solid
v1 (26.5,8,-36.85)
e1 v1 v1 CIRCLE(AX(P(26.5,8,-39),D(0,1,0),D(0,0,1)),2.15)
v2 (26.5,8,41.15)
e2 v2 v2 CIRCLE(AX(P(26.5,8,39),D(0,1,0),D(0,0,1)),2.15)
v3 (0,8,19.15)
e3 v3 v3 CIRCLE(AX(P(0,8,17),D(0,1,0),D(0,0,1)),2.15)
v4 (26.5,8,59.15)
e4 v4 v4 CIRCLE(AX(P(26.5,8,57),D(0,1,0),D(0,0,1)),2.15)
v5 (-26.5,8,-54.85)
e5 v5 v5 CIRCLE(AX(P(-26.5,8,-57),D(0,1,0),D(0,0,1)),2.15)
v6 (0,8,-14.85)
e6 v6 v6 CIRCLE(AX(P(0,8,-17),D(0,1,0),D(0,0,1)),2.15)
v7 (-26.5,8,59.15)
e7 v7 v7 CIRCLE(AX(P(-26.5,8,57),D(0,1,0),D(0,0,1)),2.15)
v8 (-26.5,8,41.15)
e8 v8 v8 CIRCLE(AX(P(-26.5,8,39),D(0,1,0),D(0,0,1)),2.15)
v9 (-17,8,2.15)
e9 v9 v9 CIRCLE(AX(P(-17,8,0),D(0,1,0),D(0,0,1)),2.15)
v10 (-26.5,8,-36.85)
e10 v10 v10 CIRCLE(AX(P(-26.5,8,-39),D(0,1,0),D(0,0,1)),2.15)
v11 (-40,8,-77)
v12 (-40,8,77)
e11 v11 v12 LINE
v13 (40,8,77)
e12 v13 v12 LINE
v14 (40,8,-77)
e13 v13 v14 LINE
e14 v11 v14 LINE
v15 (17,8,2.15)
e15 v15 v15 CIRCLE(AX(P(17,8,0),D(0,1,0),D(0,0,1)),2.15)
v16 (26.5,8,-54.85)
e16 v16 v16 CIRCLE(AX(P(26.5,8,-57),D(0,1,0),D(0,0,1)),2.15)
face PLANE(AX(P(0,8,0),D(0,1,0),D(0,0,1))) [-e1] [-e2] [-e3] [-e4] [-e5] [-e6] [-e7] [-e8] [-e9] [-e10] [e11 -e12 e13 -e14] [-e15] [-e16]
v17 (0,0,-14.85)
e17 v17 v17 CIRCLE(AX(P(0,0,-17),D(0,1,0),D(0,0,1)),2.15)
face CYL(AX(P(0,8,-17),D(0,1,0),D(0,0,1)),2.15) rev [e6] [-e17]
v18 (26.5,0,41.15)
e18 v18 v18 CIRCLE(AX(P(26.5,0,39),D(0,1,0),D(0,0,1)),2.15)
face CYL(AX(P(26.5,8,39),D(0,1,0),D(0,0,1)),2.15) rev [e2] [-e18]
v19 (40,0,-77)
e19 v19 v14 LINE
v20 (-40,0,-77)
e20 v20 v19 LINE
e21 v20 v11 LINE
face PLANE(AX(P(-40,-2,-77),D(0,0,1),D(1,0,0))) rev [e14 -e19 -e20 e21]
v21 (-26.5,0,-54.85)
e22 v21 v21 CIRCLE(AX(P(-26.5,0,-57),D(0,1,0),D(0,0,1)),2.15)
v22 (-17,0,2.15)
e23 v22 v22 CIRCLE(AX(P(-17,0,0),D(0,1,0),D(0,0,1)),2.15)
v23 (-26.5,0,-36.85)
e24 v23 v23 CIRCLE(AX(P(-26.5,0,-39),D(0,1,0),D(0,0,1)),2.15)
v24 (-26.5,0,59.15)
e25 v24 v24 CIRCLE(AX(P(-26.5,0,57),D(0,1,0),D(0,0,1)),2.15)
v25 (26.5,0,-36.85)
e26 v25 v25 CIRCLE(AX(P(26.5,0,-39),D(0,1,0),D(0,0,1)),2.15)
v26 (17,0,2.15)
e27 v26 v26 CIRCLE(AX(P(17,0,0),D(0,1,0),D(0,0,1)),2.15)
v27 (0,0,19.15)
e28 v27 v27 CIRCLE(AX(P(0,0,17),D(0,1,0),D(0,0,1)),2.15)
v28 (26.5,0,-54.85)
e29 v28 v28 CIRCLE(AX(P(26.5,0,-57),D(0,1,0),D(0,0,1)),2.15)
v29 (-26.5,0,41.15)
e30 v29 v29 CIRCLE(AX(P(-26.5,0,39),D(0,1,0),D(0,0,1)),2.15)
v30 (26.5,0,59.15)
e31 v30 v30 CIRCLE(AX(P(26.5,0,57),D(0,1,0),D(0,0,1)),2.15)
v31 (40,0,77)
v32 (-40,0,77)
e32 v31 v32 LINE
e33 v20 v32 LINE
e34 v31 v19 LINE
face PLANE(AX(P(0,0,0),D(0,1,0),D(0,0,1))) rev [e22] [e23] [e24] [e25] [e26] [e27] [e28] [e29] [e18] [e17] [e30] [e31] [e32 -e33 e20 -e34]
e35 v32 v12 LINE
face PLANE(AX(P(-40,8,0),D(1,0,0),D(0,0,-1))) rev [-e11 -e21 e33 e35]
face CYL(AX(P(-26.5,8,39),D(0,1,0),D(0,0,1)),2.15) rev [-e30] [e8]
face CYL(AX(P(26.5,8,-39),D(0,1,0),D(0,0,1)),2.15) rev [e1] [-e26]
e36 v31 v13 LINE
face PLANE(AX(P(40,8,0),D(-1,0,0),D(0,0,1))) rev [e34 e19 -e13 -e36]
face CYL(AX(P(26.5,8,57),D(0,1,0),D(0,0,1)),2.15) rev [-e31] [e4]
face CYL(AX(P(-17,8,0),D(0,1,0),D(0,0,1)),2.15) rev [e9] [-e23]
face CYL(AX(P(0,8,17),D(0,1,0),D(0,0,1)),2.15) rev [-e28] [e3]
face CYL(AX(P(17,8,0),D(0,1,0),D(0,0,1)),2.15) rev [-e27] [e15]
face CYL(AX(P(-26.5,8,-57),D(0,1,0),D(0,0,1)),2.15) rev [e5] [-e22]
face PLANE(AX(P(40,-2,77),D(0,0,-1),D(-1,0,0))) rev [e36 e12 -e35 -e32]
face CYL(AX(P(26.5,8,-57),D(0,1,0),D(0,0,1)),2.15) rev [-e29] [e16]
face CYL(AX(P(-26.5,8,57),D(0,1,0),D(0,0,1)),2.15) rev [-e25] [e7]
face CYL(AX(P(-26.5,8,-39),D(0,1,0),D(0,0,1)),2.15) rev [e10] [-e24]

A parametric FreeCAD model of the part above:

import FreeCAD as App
import Part
import Sketcher
from FreeCAD import Vector
Q = App.Units.Quantity

doc = App.newDocument("Part")
body = doc.addObject("PartDesign::Body", "Body")

sketch1 = body.newObject("Sketcher::SketchObject", "Sketch")
sketch1.AttachmentSupport = (doc.getObject("XZ_Plane"), [""])
sketch1.MapMode = "FlatFace"
sketch1.addGeometry([
    Part.LineSegment(Vector(-40, -80, 0), Vector(-40, 80, 0)),
    Part.LineSegment(Vector(-40, 80, 0), Vector(40, 80, 0)),
    Part.LineSegment(Vector(40, 80, 0), Vector(40, -80, 0)),
    Part.LineSegment(Vector(40, -80, 0), Vector(-40, -80, 0)),
], False)
sketch1.addConstraint([
    Sketcher.Constraint("Coincident", 0, 2, 1, 1),
    Sketcher.Constraint("Coincident", 1, 2, 2, 1),
    Sketcher.Constraint("Coincident", 2, 2, 3, 1),
    Sketcher.Constraint("Coincident", 3, 2, 0, 1),
    Sketcher.Constraint("Vertical", 0),
    Sketcher.Constraint("Horizontal", 1),
    Sketcher.Constraint("Vertical", 2),
    Sketcher.Constraint("Horizontal", 3),
    Sketcher.Constraint("Symmetric", 0, 2, 2, 2, -1, 1),
    Sketcher.Constraint("DistanceX", 1, 1, 1, 2, Q("80 mm")),
    Sketcher.Constraint("DistanceY", 0, 1, 0, 2, Q("161 mm")),
])
pad1 = body.newObject("PartDesign::Pad", "Pad")
pad1.Profile = sketch1
pad1.Length = 8
pad1.Reversed = True

sketch2 = body.newObject("Sketcher::SketchObject", "Sketch001")
sketch2.AttachmentSupport = (doc.getObject("XZ_Plane"), [""])
sketch2.MapMode = "FlatFace"
sketch2.AttachmentOffset = App.Placement(Vector(0, 0, -8), App.Rotation())
sketch2.addGeometry([
    Part.Circle(Vector(-26.5, -57, 0), Vector(0, 0, 1), 2.1),
    Part.Circle(Vector(26.5, -57, 0), Vector(0, 0, 1), 2.1),
    Part.Circle(Vector(-26.5, -39, 0), Vector(0, 0, 1), 2.1),
    Part.Circle(Vector(26.5, -39, 0), Vector(0, 0, 1), 2.1),
    Part.Circle(Vector(26.5, 39, 0), Vector(0, 0, 1), 2.1),
    Part.Circle(Vector(-26.5, 39, 0), Vector(0, 0, 1), 2.1),
    Part.Circle(Vector(26.5, 57, 0), Vector(0, 0, 1), 2.1),
    Part.Circle(Vector(-26.5, 57, 0), Vector(0, 0, 1), 2.1),
], False)
sketch2.addConstraint([
    Sketcher.Constraint("Equal", 0, 1),
    Sketcher.Constraint("Equal", 1, 2),
    Sketcher.Constraint("Equal", 2, 3),
    Sketcher.Constraint("Equal", 3, 4),
    Sketcher.Constraint("Equal", 4, 5),
    Sketcher.Constraint("Equal", 5, 6),
    Sketcher.Constraint("Equal", 6, 7),
    Sketcher.Constraint("Symmetric", 2, 3, 4, 3, -1, 1),
    Sketcher.Constraint("Symmetric", 3, 3, 5, 3, -1, 1),
    Sketcher.Constraint("Symmetric", 0, 3, 6, 3, -1, 1),
    Sketcher.Constraint("Symmetric", 1, 3, 7, 3, -1, 1),
    Sketcher.Constraint("Symmetric", 0, 3, 1, 3, -2),
    Sketcher.Constraint("Symmetric", 2, 3, 3, 3, -2),
    Sketcher.Constraint("Vertical", 0, 3, 2, 3),
    Sketcher.Constraint("Diameter", 0, Q("4.3 mm")),
    Sketcher.Constraint("DistanceY", 0, 3, -1, 1, Q("57 mm")),
    Sketcher.Constraint("DistanceY", 2, 3, -1, 1, Q("39 mm")),
    Sketcher.Constraint("DistanceX", 0, 3, 1, 3, Q("53 mm")),
])
doc.recompute()
hole = body.newObject("PartDesign::Hole", "Hole")
hole.Profile = sketch2
hole.ThreadType = "None"
hole.Diameter = 4.3
hole.DepthType = "ThroughAll"
hole.Reversed = True

sketch3 = body.newObject("Sketcher::SketchObject", "Sketch002")
sketch3.AttachmentSupport = (doc.getObject("XZ_Plane"), [""])
sketch3.MapMode = "FlatFace"
sketch3.AttachmentOffset = App.Placement(Vector(0, 0, -8), App.Rotation())
sketch3.addGeometry([
    Part.LineSegment(Vector(-40, -80.5, 0), Vector(-40, -77, 0)),
    Part.LineSegment(Vector(-40, -77, 0), Vector(40, -77, 0)),
    Part.LineSegment(Vector(40, -77, 0), Vector(40, -80.5, 0)),
    Part.LineSegment(Vector(40, -80.5, 0), Vector(-40, -80.5, 0)),
    Part.LineSegment(Vector(-40, 77, 0), Vector(-40, 80.5, 0)),
    Part.LineSegment(Vector(-40, 80.5, 0), Vector(40, 80.5, 0)),
    Part.LineSegment(Vector(40, 80.5, 0), Vector(40, 77, 0)),
    Part.LineSegment(Vector(40, 77, 0), Vector(-40, 77, 0)),
], False)
sketch3.addConstraint([
    Sketcher.Constraint("Coincident", 0, 2, 1, 1),
    Sketcher.Constraint("Coincident", 1, 2, 2, 1),
    Sketcher.Constraint("Coincident", 2, 2, 3, 1),
    Sketcher.Constraint("Coincident", 3, 2, 0, 1),
    Sketcher.Constraint("Coincident", 4, 2, 5, 1),
    Sketcher.Constraint("Coincident", 5, 2, 6, 1),
    Sketcher.Constraint("Coincident", 6, 2, 7, 1),
    Sketcher.Constraint("Coincident", 7, 2, 4, 1),
    Sketcher.Constraint("Vertical", 0),
    Sketcher.Constraint("Horizontal", 1),
    Sketcher.Constraint("Vertical", 2),
    Sketcher.Constraint("Horizontal", 3),
    Sketcher.Constraint("Vertical", 4),
    Sketcher.Constraint("Horizontal", 5),
    Sketcher.Constraint("Vertical", 6),
    Sketcher.Constraint("Horizontal", 7),
    Sketcher.Constraint("Symmetric", 2, 2, 4, 2, -1, 1),
    Sketcher.Constraint("Symmetric", 0, 2, 6, 2, -1, 1),
    Sketcher.Constraint("Vertical", 3, 2, 4, 2),
    Sketcher.Constraint("DistanceX", 1, 1, 1, 2, Q("80 mm")),
    Sketcher.Constraint("DistanceY", 0, 1, 0, 2, Q("3.5 mm")),
    Sketcher.Constraint("DistanceY", 0, 2, -1, 1, Q("77 mm")),
])
pocket1 = body.newObject("PartDesign::Pocket", "Pocket")
pocket1.Profile = sketch3
pocket1.Length = 10
pocket1.Reversed = True

sketch4 = body.newObject("Sketcher::SketchObject", "Sketch003")
sketch4.AttachmentSupport = (doc.getObject("XZ_Plane"), [""])
sketch4.MapMode = "FlatFace"
sketch4.AttachmentOffset = App.Placement(Vector(0, 0, -8), App.Rotation())
sketch4.addGeometry([
    Part.Circle(Vector(-17, 0, 0), Vector(0, 0, 1), 2.1),
    Part.Circle(Vector(0, -17, 0), Vector(0, 0, 1), 2.1),
    Part.Circle(Vector(17, 0, 0), Vector(0, 0, 1), 2.1),
    Part.Circle(Vector(0, 17, 0), Vector(0, 0, 1), 2.1),
], False)
sketch4.addConstraint([
    Sketcher.Constraint("Equal", 0, 1),
    Sketcher.Constraint("Equal", 1, 2),
    Sketcher.Constraint("Equal", 2, 3),
    Sketcher.Constraint("Symmetric", 0, 3, 2, 3, -1, 1),
    Sketcher.Constraint("Symmetric", 1, 3, 3, 3, -1, 1),
    Sketcher.Constraint("PointOnObject", 0, 3, -1),
    Sketcher.Constraint("PointOnObject", 1, 3, -2),
    Sketcher.Constraint("Diameter", 0, Q("4.3 mm")),
    Sketcher.Constraint("DistanceX", 0, 3, -1, 1, Q("17 mm")),
    Sketcher.Constraint("DistanceY", 1, 3, -1, 1, Q("17 mm")),
])
doc.recompute()
hole2 = body.newObject("PartDesign::Hole", "Hole001")
hole2.Profile = sketch4
hole2.ThreadType = "None"
hole2.Diameter = 4.3
hole2.DepthType = "ThroughAll"
hole2.Reversed = True

doc.recompute()
